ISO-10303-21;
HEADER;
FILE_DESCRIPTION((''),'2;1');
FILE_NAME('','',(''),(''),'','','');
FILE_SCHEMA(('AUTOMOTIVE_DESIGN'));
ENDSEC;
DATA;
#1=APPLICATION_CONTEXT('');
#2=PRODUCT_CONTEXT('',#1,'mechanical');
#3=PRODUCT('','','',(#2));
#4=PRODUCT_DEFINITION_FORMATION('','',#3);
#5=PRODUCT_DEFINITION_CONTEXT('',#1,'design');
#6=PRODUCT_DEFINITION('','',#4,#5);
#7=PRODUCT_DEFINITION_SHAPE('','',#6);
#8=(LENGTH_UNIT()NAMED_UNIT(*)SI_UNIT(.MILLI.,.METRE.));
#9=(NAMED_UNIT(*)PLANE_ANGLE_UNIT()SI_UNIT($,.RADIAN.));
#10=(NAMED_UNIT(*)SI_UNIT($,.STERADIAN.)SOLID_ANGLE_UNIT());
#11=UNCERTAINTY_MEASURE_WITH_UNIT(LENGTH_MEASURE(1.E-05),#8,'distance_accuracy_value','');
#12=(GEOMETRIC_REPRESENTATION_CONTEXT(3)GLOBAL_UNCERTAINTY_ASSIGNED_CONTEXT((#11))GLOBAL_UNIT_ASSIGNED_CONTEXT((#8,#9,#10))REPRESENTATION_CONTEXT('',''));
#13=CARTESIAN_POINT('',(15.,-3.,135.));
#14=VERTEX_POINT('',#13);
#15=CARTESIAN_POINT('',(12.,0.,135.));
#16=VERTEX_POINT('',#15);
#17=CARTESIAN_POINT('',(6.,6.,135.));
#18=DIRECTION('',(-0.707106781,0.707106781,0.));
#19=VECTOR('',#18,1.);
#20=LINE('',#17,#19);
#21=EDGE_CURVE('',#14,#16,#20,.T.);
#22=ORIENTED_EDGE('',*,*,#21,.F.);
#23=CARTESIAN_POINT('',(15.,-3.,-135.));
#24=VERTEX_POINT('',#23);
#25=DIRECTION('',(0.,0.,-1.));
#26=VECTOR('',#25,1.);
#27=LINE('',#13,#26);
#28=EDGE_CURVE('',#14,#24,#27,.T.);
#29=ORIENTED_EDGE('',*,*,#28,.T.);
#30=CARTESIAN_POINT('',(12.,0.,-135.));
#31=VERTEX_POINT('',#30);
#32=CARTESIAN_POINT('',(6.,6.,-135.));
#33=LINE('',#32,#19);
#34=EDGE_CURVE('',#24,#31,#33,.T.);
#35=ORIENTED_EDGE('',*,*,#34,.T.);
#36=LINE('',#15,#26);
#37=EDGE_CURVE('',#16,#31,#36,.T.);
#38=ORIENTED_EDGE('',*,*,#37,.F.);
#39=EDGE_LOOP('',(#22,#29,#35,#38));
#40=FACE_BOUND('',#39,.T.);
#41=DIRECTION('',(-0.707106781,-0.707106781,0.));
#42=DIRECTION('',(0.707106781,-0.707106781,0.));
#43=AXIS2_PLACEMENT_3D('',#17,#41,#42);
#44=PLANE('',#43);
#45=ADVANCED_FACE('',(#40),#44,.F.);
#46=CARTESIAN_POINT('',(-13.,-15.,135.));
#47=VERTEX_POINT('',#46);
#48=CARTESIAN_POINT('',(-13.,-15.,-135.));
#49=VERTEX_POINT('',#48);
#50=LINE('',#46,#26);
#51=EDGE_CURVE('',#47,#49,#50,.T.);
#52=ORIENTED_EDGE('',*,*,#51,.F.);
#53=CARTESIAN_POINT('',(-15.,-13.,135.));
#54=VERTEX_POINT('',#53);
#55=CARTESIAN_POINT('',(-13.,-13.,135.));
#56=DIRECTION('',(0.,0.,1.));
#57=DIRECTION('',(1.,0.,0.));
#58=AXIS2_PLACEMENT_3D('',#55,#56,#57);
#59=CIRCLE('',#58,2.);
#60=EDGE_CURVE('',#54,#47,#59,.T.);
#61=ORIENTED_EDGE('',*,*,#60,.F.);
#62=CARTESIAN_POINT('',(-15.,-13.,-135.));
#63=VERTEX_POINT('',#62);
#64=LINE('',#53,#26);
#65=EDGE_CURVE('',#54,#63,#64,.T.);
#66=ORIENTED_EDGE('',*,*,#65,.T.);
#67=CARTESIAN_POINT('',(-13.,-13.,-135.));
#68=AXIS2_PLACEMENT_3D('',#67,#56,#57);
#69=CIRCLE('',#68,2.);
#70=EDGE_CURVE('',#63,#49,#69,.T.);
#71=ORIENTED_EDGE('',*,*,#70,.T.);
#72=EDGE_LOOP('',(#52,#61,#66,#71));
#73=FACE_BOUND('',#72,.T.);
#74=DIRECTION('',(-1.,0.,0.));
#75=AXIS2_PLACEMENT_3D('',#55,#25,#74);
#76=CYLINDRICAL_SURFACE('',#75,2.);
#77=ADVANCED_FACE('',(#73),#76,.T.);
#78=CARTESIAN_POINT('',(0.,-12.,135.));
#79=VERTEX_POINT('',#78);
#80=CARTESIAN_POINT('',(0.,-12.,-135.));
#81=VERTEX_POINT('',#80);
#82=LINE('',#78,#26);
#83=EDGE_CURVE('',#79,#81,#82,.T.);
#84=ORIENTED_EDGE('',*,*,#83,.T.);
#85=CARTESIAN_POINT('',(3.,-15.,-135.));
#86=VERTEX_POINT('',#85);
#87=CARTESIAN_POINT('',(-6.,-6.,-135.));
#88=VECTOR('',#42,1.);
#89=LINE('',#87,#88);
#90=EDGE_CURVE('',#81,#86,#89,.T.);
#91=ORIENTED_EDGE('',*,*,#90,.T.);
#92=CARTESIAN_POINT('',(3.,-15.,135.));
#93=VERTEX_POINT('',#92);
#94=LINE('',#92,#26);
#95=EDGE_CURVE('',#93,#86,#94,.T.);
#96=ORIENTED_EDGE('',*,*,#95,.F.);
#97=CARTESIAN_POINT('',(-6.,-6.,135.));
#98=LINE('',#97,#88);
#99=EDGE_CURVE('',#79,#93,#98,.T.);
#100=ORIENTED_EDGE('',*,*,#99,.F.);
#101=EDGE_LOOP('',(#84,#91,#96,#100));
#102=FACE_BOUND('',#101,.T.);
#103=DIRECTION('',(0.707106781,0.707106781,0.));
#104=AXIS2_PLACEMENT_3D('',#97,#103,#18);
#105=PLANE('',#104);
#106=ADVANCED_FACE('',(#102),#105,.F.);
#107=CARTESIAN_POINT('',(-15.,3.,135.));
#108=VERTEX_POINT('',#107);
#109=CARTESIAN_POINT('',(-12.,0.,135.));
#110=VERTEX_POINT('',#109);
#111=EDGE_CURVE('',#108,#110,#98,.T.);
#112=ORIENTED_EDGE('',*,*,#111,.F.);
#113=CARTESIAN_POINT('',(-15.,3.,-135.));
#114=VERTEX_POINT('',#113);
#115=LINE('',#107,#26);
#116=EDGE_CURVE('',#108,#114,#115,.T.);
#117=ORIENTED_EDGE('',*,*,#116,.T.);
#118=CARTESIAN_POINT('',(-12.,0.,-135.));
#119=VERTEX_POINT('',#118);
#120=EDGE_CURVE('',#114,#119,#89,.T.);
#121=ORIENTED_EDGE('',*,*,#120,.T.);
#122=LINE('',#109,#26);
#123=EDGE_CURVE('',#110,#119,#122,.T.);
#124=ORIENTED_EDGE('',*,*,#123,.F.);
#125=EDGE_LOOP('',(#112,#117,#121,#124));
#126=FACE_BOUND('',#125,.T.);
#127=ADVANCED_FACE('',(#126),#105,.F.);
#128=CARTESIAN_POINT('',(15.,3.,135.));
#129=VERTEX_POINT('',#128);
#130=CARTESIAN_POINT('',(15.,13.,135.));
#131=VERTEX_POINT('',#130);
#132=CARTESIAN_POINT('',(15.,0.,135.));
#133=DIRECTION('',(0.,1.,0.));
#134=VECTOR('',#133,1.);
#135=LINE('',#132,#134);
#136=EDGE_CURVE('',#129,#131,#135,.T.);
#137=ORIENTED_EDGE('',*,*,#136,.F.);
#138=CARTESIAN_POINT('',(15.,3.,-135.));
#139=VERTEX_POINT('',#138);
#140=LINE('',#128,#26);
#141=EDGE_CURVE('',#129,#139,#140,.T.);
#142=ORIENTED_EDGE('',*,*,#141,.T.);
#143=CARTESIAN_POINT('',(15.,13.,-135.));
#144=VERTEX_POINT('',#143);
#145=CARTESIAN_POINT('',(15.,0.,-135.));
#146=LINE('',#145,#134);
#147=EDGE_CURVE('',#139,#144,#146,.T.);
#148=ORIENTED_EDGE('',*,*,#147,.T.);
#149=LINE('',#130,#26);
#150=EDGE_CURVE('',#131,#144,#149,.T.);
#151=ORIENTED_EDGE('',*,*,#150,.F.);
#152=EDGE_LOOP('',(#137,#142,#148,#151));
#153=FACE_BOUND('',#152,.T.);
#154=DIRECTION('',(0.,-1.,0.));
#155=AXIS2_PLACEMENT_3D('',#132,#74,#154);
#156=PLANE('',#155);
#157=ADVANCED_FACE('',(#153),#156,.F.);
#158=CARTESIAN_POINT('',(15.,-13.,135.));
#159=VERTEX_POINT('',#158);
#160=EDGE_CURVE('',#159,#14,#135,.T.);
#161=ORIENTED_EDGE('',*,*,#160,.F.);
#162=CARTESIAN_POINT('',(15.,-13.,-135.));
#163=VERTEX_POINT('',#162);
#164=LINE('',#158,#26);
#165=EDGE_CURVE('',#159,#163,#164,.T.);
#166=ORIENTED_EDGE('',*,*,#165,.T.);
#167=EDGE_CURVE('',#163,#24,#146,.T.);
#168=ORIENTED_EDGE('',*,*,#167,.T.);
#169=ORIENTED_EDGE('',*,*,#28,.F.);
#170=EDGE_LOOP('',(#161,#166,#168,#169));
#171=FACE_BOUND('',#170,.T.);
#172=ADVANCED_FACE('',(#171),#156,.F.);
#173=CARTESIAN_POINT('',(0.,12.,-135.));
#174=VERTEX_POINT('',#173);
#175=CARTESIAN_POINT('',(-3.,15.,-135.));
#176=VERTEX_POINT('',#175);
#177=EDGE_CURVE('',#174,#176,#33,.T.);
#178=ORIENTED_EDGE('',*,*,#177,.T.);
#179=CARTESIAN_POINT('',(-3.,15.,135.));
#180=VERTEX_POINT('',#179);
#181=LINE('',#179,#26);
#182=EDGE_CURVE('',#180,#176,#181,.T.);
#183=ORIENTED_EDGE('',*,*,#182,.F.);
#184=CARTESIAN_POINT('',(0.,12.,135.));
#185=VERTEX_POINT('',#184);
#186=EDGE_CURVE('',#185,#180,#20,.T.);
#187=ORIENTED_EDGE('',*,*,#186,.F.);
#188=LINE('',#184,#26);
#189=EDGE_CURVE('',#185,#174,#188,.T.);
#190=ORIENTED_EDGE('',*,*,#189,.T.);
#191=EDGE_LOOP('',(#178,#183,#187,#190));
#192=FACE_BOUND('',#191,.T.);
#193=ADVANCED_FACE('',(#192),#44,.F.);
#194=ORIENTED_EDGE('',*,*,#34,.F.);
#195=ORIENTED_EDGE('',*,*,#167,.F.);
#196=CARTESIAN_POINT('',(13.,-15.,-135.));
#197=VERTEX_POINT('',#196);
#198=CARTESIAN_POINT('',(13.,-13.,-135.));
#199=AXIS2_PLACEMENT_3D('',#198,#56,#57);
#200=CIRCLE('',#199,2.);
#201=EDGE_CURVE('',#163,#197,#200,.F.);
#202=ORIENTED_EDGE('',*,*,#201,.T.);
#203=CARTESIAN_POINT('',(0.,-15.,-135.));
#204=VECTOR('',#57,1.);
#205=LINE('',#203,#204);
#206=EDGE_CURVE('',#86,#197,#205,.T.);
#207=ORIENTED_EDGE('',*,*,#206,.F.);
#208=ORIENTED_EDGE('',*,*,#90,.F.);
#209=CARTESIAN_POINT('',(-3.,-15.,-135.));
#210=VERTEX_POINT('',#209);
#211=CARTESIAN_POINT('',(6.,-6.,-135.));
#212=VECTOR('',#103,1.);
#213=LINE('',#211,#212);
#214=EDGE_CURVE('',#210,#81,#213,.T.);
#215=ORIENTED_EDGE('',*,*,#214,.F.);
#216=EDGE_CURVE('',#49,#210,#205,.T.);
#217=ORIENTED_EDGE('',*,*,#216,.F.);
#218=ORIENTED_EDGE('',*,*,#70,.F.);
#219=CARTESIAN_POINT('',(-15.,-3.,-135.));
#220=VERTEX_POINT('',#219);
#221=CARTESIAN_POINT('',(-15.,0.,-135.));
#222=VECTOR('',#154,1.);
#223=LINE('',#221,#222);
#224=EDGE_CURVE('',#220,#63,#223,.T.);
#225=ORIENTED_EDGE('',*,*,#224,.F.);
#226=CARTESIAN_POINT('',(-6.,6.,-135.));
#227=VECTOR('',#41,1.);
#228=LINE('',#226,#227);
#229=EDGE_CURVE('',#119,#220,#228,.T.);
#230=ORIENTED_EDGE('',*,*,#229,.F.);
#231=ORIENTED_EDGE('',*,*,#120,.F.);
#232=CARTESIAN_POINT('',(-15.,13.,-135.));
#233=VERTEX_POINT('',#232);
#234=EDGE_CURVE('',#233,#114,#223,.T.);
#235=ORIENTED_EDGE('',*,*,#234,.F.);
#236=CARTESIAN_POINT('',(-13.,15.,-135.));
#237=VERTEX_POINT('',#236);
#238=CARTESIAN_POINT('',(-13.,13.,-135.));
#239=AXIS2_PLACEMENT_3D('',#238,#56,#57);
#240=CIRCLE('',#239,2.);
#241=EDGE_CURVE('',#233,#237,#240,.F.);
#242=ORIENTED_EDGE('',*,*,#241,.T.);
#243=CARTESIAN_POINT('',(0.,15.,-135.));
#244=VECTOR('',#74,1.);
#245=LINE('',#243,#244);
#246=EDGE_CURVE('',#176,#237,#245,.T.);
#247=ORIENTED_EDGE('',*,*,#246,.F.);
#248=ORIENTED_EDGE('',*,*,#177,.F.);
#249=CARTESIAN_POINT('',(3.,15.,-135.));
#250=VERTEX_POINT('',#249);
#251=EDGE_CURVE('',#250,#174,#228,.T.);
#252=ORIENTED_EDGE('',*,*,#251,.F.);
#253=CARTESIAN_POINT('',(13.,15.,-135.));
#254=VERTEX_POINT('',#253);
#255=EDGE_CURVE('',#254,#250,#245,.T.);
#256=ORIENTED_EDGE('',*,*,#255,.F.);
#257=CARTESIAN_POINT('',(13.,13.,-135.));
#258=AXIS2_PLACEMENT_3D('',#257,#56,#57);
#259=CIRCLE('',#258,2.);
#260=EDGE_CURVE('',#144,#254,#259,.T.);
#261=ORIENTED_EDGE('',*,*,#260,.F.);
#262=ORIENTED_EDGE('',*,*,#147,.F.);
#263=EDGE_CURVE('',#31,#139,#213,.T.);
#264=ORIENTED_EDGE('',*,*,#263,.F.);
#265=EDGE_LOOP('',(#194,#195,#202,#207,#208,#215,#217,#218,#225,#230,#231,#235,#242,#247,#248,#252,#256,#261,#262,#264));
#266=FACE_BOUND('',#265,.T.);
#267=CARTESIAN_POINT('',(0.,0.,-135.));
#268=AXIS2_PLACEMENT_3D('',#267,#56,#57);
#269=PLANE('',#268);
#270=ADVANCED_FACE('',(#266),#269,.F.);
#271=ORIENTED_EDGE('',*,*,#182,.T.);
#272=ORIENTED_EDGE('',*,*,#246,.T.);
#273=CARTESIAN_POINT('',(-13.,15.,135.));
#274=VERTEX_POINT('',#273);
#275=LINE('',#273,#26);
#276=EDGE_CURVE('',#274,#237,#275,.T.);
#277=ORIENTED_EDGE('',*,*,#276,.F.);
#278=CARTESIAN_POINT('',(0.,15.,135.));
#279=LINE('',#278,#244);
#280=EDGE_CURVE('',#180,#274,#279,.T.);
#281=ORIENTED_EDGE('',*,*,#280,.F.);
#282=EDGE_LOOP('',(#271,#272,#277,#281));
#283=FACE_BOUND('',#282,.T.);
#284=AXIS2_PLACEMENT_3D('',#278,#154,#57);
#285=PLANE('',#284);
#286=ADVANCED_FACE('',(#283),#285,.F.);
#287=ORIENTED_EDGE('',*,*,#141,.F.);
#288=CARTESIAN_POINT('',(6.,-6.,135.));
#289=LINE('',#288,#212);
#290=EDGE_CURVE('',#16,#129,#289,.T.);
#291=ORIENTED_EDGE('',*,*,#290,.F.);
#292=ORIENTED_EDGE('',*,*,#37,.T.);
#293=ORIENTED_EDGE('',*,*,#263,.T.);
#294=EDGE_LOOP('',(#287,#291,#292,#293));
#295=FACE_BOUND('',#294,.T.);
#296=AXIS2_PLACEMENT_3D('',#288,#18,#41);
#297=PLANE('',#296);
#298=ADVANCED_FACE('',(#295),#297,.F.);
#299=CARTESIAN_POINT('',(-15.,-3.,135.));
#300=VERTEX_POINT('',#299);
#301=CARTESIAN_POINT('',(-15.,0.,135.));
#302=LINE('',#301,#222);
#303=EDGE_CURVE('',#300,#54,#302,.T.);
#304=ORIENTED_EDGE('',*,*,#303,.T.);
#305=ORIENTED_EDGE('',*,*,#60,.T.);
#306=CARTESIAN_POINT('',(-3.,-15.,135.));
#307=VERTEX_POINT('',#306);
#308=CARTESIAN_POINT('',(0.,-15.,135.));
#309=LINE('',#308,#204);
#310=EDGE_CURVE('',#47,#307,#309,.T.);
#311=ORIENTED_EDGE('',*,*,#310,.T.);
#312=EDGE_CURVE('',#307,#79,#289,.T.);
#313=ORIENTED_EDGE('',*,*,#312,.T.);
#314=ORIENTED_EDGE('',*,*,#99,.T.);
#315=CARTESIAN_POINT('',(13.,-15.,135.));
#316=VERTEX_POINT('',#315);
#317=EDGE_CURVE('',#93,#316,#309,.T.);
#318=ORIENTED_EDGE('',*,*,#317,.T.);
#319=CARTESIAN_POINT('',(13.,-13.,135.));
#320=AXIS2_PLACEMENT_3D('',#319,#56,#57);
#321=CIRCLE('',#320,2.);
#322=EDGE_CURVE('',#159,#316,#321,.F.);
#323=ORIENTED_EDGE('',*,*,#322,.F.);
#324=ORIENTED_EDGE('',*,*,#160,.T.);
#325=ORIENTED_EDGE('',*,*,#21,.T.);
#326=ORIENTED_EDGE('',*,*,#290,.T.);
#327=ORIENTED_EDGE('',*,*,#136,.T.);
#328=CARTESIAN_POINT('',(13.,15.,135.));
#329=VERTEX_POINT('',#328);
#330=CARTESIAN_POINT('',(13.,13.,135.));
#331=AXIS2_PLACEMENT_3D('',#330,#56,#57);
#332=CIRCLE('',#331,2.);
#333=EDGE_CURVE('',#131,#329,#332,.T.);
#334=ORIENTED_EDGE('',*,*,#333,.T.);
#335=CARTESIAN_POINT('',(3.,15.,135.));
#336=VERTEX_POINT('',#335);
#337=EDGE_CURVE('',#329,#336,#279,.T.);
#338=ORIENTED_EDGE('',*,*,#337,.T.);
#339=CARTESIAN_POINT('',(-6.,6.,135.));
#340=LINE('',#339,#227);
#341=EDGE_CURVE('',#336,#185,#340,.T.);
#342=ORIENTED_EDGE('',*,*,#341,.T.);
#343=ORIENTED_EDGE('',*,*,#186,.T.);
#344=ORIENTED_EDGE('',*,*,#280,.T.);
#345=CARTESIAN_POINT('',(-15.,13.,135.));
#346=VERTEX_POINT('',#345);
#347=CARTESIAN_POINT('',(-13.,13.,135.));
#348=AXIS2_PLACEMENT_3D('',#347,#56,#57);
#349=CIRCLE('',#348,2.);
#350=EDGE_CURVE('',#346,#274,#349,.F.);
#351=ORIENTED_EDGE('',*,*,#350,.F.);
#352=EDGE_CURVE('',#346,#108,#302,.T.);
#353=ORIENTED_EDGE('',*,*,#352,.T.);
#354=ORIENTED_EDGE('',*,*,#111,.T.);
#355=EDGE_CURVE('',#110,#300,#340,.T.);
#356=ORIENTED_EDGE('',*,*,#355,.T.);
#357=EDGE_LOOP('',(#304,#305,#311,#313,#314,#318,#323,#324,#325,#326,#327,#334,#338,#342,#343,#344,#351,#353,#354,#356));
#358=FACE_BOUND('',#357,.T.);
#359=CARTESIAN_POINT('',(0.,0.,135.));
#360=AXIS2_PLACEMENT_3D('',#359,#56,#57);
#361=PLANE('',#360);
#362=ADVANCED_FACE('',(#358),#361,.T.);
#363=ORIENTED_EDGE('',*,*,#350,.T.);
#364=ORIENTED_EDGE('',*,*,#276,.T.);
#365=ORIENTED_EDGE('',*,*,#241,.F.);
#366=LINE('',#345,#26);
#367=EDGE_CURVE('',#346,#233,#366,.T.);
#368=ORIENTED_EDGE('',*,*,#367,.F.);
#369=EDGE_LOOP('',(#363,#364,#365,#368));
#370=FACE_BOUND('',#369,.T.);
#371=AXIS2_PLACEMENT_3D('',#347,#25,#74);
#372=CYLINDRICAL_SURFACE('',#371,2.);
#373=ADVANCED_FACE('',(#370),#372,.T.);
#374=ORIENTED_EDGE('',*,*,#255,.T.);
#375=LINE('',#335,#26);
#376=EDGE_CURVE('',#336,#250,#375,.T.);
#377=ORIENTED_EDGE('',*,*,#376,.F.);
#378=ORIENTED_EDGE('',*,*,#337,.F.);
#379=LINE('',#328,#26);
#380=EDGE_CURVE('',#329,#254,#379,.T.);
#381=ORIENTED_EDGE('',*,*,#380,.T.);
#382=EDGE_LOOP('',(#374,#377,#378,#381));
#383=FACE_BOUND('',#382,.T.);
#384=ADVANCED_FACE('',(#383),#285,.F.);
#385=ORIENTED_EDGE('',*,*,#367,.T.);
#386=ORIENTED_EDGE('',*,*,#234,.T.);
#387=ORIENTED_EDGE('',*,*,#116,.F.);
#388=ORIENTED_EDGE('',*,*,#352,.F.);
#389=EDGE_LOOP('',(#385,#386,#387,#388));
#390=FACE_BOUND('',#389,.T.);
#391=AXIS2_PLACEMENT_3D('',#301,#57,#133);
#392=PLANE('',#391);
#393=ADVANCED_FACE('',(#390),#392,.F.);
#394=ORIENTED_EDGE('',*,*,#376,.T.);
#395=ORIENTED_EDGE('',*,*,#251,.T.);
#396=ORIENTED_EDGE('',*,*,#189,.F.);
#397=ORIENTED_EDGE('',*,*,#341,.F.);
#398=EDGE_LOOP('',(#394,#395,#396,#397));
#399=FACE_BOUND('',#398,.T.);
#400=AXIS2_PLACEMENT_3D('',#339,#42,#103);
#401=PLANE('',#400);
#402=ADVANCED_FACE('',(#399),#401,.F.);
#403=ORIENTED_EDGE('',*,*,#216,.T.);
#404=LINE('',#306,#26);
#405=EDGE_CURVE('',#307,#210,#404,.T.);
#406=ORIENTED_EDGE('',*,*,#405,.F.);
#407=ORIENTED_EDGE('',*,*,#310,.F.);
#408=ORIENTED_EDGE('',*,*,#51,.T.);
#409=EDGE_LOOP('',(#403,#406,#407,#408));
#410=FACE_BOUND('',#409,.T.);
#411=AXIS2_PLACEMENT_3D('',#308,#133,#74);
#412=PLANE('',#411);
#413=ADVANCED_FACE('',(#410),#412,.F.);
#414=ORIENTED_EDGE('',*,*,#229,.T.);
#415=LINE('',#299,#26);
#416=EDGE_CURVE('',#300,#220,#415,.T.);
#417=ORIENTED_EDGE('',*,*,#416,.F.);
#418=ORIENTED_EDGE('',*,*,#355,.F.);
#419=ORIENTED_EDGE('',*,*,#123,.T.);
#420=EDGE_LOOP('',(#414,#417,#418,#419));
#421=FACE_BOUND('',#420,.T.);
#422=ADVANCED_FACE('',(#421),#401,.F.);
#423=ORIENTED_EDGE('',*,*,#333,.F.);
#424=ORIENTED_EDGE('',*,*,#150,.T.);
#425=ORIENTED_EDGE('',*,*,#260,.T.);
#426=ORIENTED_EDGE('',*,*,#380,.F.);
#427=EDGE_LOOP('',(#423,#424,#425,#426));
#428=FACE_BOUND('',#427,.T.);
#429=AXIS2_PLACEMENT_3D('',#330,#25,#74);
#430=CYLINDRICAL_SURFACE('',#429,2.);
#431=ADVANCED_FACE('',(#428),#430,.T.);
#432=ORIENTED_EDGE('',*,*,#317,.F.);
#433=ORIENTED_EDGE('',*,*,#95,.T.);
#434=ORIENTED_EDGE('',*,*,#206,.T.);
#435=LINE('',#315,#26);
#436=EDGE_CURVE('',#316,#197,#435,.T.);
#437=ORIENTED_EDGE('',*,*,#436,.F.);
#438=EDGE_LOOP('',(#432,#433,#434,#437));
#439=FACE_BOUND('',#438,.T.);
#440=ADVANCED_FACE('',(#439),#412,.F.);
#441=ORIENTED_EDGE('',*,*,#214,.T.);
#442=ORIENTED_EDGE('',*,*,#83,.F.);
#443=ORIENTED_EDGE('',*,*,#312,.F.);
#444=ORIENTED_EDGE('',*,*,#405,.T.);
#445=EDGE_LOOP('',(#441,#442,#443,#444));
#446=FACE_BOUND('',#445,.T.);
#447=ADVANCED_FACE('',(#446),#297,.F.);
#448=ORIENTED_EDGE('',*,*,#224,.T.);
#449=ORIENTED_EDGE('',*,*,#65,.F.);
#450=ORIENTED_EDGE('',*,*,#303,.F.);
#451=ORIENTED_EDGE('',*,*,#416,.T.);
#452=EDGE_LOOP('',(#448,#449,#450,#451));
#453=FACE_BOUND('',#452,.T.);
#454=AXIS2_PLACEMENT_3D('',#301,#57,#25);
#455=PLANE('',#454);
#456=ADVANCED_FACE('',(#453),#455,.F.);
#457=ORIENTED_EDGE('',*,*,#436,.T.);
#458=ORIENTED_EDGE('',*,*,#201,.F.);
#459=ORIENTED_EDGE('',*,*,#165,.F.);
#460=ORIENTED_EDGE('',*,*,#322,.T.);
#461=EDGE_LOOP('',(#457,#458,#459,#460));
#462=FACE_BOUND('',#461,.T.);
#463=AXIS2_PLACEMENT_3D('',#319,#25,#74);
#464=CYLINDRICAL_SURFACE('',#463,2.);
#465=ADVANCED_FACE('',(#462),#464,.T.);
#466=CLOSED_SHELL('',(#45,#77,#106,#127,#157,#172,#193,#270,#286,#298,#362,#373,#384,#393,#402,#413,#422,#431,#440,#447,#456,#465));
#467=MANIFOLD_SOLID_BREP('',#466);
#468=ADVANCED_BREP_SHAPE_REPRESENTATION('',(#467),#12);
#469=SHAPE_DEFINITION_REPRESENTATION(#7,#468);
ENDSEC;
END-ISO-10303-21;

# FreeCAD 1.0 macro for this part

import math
import FreeCAD as App
import Part
import Sketcher
from FreeCAD import Vector

doc = App.newDocument("Part")
body = doc.addObject("PartDesign::Body", "Body")

# Sketch on XY plane
sketch1 = doc.addObject("Sketcher::SketchObject", "Sketch")
body.addObject(sketch1)
sketch1.AttachmentSupport = (doc.XY_Plane, [""])
sketch1.MapMode = "FlatFace"
sketch1.addGeometry([
    Part.LineSegment(Vector(15, 3, 0), Vector(15, 13, 0)),  # 0
    Part.ArcOfCircle(Part.Circle(Vector(13, 13, 0), Vector(0, 0, 1), 2), math.radians(0), math.radians(90)),  # 1
    Part.LineSegment(Vector(13, 15, 0), Vector(3, 15, 0)),  # 2
    Part.LineSegment(Vector(3, 15, 0), Vector(0, 12, 0)),  # 3
    Part.LineSegment(Vector(0, 12, 0), Vector(-3, 15, 0)),  # 4
    Part.LineSegment(Vector(-3, 15, 0), Vector(-13, 15, 0)),  # 5
    Part.ArcOfCircle(Part.Circle(Vector(-13, 13, 0), Vector(0, 0, 1), 2), math.radians(90), math.radians(180)),  # 6
    Part.LineSegment(Vector(-15, 13, 0), Vector(-15, 3, 0)),  # 7
    Part.LineSegment(Vector(-15, 3, 0), Vector(-12, 0, 0)),  # 8
    Part.LineSegment(Vector(-12, 0, 0), Vector(-15, -3, 0)),  # 9
    Part.LineSegment(Vector(-15, -3, 0), Vector(-15, -13, 0)),  # 10
    Part.ArcOfCircle(Part.Circle(Vector(-13, -13, 0), Vector(0, 0, 1), 2), math.radians(-180), math.radians(-90)),  # 11
    Part.LineSegment(Vector(-13, -15, 0), Vector(-3, -15, 0)),  # 12
    Part.LineSegment(Vector(-3, -15, 0), Vector(0, -12, 0)),  # 13
    Part.LineSegment(Vector(0, -12, 0), Vector(3, -15, 0)),  # 14
    Part.LineSegment(Vector(3, -15, 0), Vector(13, -15, 0)),  # 15
    Part.ArcOfCircle(Part.Circle(Vector(13, -13, 0), Vector(0, 0, 1), 2), math.radians(-90), math.radians(0)),  # 16
    Part.LineSegment(Vector(15, -13, 0), Vector(15, -3, 0)),  # 17
    Part.LineSegment(Vector(15, -3, 0), Vector(12, 0, 0)),  # 18
    Part.LineSegment(Vector(12, 0, 0), Vector(15, 3, 0)),  # 19
], False)
sketch1.addConstraint([
    Sketcher.Constraint("Tangent", 0, 2, 1, 1),
    Sketcher.Constraint("Tangent", 1, 2, 2, 1),
    Sketcher.Constraint("Coincident", 2, 2, 3, 1),
    Sketcher.Constraint("Coincident", 3, 2, 4, 1),
    Sketcher.Constraint("Coincident", 4, 2, 5, 1),
    Sketcher.Constraint("Tangent", 5, 2, 6, 1),
    Sketcher.Constraint("Tangent", 6, 2, 7, 1),
    Sketcher.Constraint("Coincident", 7, 2, 8, 1),
    Sketcher.Constraint("Coincident", 8, 2, 9, 1),
    Sketcher.Constraint("Coincident", 9, 2, 10, 1),
    Sketcher.Constraint("Tangent", 10, 2, 11, 1),
    Sketcher.Constraint("Tangent", 11, 2, 12, 1),
    Sketcher.Constraint("Coincident", 12, 2, 13, 1),
    Sketcher.Constraint("Coincident", 13, 2, 14, 1),
    Sketcher.Constraint("Coincident", 14, 2, 15, 1),
    Sketcher.Constraint("Tangent", 15, 2, 16, 1),
    Sketcher.Constraint("Tangent", 16, 2, 17, 1),
    Sketcher.Constraint("Coincident", 17, 2, 18, 1),
    Sketcher.Constraint("Coincident", 18, 2, 19, 1),
    Sketcher.Constraint("Coincident", 19, 2, 0, 1),
    Sketcher.Constraint("Vertical", 0),
    Sketcher.Constraint("Horizontal", 2),
    Sketcher.Constraint("Horizontal", 5),
    Sketcher.Constraint("Vertical", 7),
    Sketcher.Constraint("Vertical", 10),
    Sketcher.Constraint("Horizontal", 12),
    Sketcher.Constraint("Horizontal", 15),
    Sketcher.Constraint("Vertical", 17),
    Sketcher.Constraint("Equal", 1, 6),
    Sketcher.Constraint("Equal", 6, 11),
    Sketcher.Constraint("Equal", 11, 16),
    Sketcher.Constraint("Symmetric", 1, 3, 11, 3, -1, 1),
    Sketcher.Constraint("Symmetric", 6, 3, 16, 3, -1, 1),
    Sketcher.Constraint("Symmetric", 3, 2, 13, 2, -1, 1),
    Sketcher.Constraint("Symmetric", 8, 2, 18, 2, -1, 1),
    Sketcher.Constraint("Symmetric", 1, 3, 6, 3, -2),
    Sketcher.Constraint("PointOnObject", 3, 2, -2),
    Sketcher.Constraint("PointOnObject", 8, 2, -1),
    Sketcher.Constraint("Perpendicular", 3, 4),
    Sketcher.Constraint("Parallel", 4, 8),
    Sketcher.Constraint("Perpendicular", 8, 9),
    Sketcher.Constraint("Parallel", 9, 13),
    Sketcher.Constraint("Perpendicular", 13, 14),
    Sketcher.Constraint("Parallel", 14, 18),
    Sketcher.Constraint("Perpendicular", 18, 19),
    Sketcher.Constraint("Horizontal", 9, 2, 17, 2),
    Sketcher.Constraint("Equal", 15, 0),
    Sketcher.Constraint("Equal", 4, 8),
    Sketcher.Constraint("Radius", 1, 2.0),
    Sketcher.Constraint("DistanceX", 2, 2, 2, 1, 10.0),
    Sketcher.Constraint("DistanceX", -1, 1, 1, 3, 13.0),
])
pad1 = doc.addObject("PartDesign::Pad", "Pad")
body.addObject(pad1)
pad1.Profile = sketch1
pad1.Length = 270
pad1.Midplane = True

doc.recompute()
